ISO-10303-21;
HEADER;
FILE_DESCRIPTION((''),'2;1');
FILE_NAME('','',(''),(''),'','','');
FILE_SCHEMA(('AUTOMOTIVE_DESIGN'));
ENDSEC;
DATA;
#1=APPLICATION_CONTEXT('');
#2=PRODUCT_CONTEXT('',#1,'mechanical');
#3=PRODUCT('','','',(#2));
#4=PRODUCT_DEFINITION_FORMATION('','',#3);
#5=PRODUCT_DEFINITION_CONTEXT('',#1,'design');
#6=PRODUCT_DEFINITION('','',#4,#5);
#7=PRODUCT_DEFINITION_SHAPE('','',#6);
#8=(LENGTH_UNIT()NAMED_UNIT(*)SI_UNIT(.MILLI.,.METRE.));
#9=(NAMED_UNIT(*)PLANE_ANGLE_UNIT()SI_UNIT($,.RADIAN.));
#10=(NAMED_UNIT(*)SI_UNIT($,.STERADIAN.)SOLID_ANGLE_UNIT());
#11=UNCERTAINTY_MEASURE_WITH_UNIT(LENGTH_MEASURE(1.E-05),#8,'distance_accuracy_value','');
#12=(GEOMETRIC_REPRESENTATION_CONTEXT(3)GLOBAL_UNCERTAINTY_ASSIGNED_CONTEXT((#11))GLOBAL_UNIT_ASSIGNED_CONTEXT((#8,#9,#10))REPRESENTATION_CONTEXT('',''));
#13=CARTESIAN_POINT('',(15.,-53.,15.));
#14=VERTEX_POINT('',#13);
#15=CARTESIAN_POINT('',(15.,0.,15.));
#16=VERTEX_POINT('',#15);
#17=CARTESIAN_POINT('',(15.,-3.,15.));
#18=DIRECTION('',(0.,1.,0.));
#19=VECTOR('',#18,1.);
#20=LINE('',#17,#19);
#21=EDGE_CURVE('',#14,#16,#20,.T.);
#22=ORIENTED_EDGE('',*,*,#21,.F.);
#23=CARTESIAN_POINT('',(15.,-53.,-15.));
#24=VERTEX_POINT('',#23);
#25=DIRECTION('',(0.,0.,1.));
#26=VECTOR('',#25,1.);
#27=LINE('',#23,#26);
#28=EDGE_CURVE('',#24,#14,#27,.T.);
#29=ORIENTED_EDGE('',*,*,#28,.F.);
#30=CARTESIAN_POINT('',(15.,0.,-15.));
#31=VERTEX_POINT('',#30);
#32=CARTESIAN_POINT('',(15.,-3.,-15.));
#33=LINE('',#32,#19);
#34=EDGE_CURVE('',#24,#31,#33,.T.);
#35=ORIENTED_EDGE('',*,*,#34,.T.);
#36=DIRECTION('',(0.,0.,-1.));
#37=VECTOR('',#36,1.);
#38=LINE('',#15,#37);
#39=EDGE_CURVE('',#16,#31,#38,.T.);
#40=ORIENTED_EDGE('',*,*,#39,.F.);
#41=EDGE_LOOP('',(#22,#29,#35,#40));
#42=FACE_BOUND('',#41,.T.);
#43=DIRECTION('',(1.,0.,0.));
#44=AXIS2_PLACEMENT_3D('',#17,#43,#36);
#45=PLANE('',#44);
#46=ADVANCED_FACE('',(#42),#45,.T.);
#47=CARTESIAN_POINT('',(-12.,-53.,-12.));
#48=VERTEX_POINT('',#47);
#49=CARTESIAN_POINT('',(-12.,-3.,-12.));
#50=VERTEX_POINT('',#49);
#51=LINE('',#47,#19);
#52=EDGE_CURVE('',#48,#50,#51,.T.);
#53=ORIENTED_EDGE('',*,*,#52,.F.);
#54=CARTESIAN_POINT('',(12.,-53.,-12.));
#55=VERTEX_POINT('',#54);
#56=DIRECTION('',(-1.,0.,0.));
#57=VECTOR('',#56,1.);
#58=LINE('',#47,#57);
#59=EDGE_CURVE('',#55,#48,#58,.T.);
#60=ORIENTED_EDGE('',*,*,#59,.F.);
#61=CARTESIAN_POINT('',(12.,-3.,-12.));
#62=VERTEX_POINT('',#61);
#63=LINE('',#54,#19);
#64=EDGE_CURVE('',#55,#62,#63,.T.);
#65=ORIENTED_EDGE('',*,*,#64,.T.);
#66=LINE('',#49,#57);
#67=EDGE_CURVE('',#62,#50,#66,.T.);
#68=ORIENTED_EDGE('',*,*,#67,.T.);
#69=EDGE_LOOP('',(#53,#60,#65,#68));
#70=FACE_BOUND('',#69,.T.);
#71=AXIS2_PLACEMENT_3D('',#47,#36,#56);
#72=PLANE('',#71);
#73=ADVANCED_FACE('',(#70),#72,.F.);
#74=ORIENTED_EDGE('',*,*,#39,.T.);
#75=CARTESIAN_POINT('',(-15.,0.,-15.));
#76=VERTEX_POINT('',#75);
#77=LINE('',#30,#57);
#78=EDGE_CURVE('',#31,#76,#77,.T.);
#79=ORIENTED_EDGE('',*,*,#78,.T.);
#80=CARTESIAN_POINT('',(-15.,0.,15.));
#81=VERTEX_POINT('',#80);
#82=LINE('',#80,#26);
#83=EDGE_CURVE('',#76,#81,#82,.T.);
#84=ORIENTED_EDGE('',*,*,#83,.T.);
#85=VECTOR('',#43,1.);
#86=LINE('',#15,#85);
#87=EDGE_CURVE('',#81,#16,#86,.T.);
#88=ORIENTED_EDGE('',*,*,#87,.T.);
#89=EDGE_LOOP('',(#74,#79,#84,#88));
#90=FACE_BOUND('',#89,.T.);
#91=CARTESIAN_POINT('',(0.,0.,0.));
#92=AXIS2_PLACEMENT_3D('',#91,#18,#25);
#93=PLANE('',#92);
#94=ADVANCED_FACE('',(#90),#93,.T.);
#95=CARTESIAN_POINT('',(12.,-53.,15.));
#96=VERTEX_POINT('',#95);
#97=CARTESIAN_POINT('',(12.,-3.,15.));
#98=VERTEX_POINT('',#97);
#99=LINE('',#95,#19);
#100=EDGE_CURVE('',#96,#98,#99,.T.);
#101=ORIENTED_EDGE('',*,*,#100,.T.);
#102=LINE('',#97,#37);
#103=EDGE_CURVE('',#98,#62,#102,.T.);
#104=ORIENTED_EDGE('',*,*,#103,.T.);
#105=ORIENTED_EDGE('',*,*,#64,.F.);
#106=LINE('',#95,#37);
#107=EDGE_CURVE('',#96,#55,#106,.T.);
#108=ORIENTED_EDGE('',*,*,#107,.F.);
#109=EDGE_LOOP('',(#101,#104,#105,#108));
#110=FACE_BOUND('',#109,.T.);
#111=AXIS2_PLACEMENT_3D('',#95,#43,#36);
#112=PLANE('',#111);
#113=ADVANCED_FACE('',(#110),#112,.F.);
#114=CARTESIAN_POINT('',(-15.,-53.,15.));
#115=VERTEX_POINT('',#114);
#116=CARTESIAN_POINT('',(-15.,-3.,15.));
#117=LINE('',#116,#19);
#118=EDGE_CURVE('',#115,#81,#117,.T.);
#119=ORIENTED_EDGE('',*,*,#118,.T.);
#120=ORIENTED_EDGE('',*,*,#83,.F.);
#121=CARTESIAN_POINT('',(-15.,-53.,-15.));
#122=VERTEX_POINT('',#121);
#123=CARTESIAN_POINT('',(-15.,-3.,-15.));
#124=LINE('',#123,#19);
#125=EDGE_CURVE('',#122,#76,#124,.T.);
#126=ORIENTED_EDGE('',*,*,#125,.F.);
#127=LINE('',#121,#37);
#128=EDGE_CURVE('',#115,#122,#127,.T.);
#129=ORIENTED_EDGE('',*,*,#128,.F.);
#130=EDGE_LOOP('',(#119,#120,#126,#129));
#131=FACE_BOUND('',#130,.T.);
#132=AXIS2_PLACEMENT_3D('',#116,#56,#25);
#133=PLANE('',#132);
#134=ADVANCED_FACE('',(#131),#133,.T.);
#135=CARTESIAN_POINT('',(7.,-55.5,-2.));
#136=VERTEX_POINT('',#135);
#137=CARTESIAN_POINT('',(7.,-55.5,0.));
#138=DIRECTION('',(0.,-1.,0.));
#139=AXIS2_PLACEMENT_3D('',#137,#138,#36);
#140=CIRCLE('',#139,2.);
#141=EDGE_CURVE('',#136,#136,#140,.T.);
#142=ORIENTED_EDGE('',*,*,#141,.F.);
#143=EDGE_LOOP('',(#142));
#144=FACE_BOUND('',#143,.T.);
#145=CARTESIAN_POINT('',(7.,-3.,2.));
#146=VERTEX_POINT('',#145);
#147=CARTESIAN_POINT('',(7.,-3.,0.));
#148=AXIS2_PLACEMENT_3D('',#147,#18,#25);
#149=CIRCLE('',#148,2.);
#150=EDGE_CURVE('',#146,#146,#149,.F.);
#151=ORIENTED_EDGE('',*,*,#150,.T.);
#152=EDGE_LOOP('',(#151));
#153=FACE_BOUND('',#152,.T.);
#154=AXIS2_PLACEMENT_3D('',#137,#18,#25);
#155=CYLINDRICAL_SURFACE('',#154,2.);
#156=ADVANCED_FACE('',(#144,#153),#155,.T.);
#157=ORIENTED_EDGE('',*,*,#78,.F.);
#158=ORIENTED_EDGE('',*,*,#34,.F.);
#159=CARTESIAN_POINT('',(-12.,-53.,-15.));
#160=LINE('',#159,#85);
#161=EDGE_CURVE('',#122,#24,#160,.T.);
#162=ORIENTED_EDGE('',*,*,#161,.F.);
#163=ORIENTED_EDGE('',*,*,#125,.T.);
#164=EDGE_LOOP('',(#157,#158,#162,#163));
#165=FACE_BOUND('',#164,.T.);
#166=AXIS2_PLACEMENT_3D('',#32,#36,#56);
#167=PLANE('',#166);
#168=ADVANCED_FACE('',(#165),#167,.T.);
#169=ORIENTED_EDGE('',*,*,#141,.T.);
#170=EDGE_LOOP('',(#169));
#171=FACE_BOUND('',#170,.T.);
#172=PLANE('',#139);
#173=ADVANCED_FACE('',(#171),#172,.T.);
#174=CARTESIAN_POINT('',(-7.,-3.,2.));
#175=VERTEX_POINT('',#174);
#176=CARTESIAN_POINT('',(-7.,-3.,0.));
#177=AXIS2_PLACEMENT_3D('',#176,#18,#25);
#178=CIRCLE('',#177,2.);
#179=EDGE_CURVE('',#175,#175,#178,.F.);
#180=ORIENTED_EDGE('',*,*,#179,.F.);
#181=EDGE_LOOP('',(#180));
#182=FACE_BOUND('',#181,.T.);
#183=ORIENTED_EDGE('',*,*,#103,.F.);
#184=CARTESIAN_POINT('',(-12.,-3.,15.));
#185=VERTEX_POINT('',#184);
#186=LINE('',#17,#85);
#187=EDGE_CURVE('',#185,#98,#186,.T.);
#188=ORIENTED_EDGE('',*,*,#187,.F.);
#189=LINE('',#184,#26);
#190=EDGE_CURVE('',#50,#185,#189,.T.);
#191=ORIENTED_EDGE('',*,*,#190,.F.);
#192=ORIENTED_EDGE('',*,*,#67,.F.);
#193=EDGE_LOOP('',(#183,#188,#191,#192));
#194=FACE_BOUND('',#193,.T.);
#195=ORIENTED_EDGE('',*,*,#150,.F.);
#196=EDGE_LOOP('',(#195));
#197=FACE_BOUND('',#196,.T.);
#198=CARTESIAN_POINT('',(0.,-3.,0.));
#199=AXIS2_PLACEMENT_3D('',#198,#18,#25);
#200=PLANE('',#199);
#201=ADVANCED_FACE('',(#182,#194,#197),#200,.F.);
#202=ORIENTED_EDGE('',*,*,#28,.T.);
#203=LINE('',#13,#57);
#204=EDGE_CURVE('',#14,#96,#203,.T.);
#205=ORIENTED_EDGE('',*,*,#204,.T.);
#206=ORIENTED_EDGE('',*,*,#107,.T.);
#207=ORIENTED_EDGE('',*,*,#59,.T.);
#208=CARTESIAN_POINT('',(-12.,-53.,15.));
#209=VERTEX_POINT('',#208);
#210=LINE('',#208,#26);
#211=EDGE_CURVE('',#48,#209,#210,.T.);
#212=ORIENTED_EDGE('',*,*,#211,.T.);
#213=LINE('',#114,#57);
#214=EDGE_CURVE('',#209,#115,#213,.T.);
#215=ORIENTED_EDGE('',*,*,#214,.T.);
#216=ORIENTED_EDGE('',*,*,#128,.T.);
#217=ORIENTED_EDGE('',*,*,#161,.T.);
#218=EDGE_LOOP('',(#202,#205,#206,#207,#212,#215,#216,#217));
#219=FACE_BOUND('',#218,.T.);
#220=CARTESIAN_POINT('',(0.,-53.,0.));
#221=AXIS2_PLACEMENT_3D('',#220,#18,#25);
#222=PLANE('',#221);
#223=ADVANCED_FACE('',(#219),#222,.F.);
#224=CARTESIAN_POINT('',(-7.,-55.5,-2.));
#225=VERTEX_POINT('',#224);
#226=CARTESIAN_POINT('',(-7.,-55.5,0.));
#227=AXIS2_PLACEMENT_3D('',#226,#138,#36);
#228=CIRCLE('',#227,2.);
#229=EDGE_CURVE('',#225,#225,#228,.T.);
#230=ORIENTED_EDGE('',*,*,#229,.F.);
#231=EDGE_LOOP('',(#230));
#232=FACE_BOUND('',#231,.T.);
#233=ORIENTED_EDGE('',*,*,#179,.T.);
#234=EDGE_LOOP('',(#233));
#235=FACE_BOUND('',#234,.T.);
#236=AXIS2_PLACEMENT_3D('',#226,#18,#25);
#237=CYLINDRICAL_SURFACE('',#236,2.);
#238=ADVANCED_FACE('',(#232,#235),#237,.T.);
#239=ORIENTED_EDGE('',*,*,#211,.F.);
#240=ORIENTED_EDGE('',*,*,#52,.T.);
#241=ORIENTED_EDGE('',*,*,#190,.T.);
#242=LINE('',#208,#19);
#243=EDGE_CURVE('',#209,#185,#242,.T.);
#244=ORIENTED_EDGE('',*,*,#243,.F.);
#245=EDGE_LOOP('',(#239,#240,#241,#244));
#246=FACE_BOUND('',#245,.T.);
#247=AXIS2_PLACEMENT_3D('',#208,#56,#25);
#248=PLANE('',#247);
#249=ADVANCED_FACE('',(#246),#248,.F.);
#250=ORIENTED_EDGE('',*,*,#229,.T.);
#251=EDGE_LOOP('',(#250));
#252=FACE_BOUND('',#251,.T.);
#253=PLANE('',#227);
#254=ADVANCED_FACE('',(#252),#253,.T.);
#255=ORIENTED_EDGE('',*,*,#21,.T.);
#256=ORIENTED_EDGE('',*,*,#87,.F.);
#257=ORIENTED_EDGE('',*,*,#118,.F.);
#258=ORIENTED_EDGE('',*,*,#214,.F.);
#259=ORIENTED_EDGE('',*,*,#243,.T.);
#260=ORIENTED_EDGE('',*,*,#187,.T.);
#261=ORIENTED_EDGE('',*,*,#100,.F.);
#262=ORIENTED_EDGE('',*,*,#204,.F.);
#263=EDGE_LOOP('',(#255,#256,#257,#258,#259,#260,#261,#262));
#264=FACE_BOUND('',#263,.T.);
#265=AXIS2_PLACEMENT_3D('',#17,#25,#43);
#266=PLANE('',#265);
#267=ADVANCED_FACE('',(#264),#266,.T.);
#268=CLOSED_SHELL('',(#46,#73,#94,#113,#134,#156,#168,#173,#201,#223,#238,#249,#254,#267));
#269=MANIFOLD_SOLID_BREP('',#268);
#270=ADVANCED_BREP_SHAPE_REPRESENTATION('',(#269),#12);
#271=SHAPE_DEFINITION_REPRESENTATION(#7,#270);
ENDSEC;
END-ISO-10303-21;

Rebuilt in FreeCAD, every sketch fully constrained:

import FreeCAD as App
import Part
import Sketcher
from FreeCAD import Vector


def add_polygon(sketch, points):
    """Adds a closed chain of lines whose ends are joined by coincident constraints."""
    first, n = sketch.GeometryCount, len(points)
    for a, b in zip(points, points[1:] + points[:1]):
        sketch.addGeometry(Part.LineSegment(App.Vector(*a, 0), App.Vector(*b, 0)), False)
    for i in range(n):
        sketch.addConstraint(Sketcher.Constraint("Coincident", first + i, 2, first + (i + 1) % n, 1))

doc = App.newDocument("Part")
params = doc.addObject("Spreadsheet::Sheet", "Params")
for row, (alias, value) in enumerate([
    ("sketch1_width", "30 mm"),
    ("pad1_length", "3 mm"),
    ("sketch2_width", "3 mm"),
    ("sketch2_width2", "30 mm"),
    ("sketch2_height", "27 mm"),
    ("pad2_length", "50 mm"),
    ("sketch3_diameter", "4 mm"),
    ("pad3_length", "52.5 mm"),
], start=1):
    params.set(f"A{row}", alias)
    params.set(f"B{row}", "=" + value)
    params.setAlias(f"B{row}", alias)

body = doc.addObject("PartDesign::Body", "Body")

# Sketch on XZ plane
sketch1 = body.newObject("Sketcher::SketchObject", "Sketch")
sketch1.AttachmentSupport = (doc.getObject("XZ_Plane"), [""])
sketch1.MapMode = "FlatFace"
add_polygon(sketch1, [(-15, -15), (-15, 15), (15, 15), (15, -15)])  # lines 0-3
sketch1.addConstraint([
    Sketcher.Constraint("Vertical", 0),
    Sketcher.Constraint("Horizontal", 1),
    Sketcher.Constraint("Vertical", 2),
    Sketcher.Constraint("Horizontal", 3),
    Sketcher.Constraint("Symmetric", 0, 2, 2, 2, -1, 1),
    Sketcher.Constraint("Equal", 3, 0),
    Sketcher.Constraint("DistanceX", 1, 1, 1, 2, 30.0),
])
sketch1.setExpression("Constraints[10]", "Params.sketch1_width")
pad1 = body.newObject("PartDesign::Pad", "Pad")
pad1.Profile = sketch1
pad1.setExpression("Length", "Params.pad1_length")

# Sketch on XZ plane
sketch2 = body.newObject("Sketcher::SketchObject", "Sketch001")
sketch2.AttachmentSupport = (doc.getObject("XZ_Plane"), [""])
sketch2.MapMode = "FlatFace"
sketch2.AttachmentOffset = App.Placement(Vector(0, 0, 3), App.Rotation())
add_polygon(sketch2, [(-12, 15), (-15, 15), (-15, -15), (15, -15), (15, 15), (12, 15), (12, -12), (-12, -12)])  # lines 0-7
sketch2.addConstraint([
    Sketcher.Constraint("Horizontal", 0),
    Sketcher.Constraint("Vertical", 1),
    Sketcher.Constraint("Horizontal", 2),
    Sketcher.Constraint("Vertical", 3),
    Sketcher.Constraint("Horizontal", 4),
    Sketcher.Constraint("Vertical", 5),
    Sketcher.Constraint("Horizontal", 6),
    Sketcher.Constraint("Vertical", 7),
    Sketcher.Constraint("Symmetric", 0, 2, 2, 2, -1, 1),
    Sketcher.Constraint("Symmetric", 4, 2, 7, 2, -2),
    Sketcher.Constraint("Equal", 2, 1),
    Sketcher.Constraint("DistanceX", 0, 2, 0, 1, 3.0),
    Sketcher.Constraint("DistanceX", 2, 1, 2, 2, 30.0),
    Sketcher.Constraint("DistanceY", 5, 2, 5, 1, 27.0),
])
sketch2.setExpression("Constraints[19]", "Params.sketch2_width")
sketch2.setExpression("Constraints[20]", "Params.sketch2_width2")
sketch2.setExpression("Constraints[21]", "Params.sketch2_height")
pad2 = body.newObject("PartDesign::Pad", "Pad001")
pad2.Profile = sketch2
pad2.setExpression("Length", "Params.pad2_length")

# Sketch on XZ plane
sketch3 = body.newObject("Sketcher::SketchObject", "Sketch002")
sketch3.AttachmentSupport = (doc.getObject("XZ_Plane"), [""])
sketch3.MapMode = "FlatFace"
sketch3.AttachmentOffset = App.Placement(Vector(0, 0, 3), App.Rotation())
sketch3.addGeometry([
    Part.Circle(Vector(-7, 0, 0), Vector(0, 0, 1), 2),
    Part.Circle(Vector(7, 0, 0), Vector(0, 0, 1), 2),
], False)
sketch3.addConstraint([
    Sketcher.Constraint("Equal", 0, 1),
    Sketcher.Constraint("Symmetric", 0, 3, 1, 3, -1, 1),
    Sketcher.Constraint("PointOnObject", 0, 3, -1),
    Sketcher.Constraint("Diameter", 0, 4.0),
    Sketcher.Constraint("DistanceX", 0, 3, -1, 1, 7.0),
])
sketch3.setExpression("Constraints[3]", "Params.sketch3_diameter")
pad3 = body.newObject("PartDesign::Pad", "Pad002")
pad3.Profile = sketch3
pad3.setExpression("Length", "Params.pad3_length")

doc.recompute()
